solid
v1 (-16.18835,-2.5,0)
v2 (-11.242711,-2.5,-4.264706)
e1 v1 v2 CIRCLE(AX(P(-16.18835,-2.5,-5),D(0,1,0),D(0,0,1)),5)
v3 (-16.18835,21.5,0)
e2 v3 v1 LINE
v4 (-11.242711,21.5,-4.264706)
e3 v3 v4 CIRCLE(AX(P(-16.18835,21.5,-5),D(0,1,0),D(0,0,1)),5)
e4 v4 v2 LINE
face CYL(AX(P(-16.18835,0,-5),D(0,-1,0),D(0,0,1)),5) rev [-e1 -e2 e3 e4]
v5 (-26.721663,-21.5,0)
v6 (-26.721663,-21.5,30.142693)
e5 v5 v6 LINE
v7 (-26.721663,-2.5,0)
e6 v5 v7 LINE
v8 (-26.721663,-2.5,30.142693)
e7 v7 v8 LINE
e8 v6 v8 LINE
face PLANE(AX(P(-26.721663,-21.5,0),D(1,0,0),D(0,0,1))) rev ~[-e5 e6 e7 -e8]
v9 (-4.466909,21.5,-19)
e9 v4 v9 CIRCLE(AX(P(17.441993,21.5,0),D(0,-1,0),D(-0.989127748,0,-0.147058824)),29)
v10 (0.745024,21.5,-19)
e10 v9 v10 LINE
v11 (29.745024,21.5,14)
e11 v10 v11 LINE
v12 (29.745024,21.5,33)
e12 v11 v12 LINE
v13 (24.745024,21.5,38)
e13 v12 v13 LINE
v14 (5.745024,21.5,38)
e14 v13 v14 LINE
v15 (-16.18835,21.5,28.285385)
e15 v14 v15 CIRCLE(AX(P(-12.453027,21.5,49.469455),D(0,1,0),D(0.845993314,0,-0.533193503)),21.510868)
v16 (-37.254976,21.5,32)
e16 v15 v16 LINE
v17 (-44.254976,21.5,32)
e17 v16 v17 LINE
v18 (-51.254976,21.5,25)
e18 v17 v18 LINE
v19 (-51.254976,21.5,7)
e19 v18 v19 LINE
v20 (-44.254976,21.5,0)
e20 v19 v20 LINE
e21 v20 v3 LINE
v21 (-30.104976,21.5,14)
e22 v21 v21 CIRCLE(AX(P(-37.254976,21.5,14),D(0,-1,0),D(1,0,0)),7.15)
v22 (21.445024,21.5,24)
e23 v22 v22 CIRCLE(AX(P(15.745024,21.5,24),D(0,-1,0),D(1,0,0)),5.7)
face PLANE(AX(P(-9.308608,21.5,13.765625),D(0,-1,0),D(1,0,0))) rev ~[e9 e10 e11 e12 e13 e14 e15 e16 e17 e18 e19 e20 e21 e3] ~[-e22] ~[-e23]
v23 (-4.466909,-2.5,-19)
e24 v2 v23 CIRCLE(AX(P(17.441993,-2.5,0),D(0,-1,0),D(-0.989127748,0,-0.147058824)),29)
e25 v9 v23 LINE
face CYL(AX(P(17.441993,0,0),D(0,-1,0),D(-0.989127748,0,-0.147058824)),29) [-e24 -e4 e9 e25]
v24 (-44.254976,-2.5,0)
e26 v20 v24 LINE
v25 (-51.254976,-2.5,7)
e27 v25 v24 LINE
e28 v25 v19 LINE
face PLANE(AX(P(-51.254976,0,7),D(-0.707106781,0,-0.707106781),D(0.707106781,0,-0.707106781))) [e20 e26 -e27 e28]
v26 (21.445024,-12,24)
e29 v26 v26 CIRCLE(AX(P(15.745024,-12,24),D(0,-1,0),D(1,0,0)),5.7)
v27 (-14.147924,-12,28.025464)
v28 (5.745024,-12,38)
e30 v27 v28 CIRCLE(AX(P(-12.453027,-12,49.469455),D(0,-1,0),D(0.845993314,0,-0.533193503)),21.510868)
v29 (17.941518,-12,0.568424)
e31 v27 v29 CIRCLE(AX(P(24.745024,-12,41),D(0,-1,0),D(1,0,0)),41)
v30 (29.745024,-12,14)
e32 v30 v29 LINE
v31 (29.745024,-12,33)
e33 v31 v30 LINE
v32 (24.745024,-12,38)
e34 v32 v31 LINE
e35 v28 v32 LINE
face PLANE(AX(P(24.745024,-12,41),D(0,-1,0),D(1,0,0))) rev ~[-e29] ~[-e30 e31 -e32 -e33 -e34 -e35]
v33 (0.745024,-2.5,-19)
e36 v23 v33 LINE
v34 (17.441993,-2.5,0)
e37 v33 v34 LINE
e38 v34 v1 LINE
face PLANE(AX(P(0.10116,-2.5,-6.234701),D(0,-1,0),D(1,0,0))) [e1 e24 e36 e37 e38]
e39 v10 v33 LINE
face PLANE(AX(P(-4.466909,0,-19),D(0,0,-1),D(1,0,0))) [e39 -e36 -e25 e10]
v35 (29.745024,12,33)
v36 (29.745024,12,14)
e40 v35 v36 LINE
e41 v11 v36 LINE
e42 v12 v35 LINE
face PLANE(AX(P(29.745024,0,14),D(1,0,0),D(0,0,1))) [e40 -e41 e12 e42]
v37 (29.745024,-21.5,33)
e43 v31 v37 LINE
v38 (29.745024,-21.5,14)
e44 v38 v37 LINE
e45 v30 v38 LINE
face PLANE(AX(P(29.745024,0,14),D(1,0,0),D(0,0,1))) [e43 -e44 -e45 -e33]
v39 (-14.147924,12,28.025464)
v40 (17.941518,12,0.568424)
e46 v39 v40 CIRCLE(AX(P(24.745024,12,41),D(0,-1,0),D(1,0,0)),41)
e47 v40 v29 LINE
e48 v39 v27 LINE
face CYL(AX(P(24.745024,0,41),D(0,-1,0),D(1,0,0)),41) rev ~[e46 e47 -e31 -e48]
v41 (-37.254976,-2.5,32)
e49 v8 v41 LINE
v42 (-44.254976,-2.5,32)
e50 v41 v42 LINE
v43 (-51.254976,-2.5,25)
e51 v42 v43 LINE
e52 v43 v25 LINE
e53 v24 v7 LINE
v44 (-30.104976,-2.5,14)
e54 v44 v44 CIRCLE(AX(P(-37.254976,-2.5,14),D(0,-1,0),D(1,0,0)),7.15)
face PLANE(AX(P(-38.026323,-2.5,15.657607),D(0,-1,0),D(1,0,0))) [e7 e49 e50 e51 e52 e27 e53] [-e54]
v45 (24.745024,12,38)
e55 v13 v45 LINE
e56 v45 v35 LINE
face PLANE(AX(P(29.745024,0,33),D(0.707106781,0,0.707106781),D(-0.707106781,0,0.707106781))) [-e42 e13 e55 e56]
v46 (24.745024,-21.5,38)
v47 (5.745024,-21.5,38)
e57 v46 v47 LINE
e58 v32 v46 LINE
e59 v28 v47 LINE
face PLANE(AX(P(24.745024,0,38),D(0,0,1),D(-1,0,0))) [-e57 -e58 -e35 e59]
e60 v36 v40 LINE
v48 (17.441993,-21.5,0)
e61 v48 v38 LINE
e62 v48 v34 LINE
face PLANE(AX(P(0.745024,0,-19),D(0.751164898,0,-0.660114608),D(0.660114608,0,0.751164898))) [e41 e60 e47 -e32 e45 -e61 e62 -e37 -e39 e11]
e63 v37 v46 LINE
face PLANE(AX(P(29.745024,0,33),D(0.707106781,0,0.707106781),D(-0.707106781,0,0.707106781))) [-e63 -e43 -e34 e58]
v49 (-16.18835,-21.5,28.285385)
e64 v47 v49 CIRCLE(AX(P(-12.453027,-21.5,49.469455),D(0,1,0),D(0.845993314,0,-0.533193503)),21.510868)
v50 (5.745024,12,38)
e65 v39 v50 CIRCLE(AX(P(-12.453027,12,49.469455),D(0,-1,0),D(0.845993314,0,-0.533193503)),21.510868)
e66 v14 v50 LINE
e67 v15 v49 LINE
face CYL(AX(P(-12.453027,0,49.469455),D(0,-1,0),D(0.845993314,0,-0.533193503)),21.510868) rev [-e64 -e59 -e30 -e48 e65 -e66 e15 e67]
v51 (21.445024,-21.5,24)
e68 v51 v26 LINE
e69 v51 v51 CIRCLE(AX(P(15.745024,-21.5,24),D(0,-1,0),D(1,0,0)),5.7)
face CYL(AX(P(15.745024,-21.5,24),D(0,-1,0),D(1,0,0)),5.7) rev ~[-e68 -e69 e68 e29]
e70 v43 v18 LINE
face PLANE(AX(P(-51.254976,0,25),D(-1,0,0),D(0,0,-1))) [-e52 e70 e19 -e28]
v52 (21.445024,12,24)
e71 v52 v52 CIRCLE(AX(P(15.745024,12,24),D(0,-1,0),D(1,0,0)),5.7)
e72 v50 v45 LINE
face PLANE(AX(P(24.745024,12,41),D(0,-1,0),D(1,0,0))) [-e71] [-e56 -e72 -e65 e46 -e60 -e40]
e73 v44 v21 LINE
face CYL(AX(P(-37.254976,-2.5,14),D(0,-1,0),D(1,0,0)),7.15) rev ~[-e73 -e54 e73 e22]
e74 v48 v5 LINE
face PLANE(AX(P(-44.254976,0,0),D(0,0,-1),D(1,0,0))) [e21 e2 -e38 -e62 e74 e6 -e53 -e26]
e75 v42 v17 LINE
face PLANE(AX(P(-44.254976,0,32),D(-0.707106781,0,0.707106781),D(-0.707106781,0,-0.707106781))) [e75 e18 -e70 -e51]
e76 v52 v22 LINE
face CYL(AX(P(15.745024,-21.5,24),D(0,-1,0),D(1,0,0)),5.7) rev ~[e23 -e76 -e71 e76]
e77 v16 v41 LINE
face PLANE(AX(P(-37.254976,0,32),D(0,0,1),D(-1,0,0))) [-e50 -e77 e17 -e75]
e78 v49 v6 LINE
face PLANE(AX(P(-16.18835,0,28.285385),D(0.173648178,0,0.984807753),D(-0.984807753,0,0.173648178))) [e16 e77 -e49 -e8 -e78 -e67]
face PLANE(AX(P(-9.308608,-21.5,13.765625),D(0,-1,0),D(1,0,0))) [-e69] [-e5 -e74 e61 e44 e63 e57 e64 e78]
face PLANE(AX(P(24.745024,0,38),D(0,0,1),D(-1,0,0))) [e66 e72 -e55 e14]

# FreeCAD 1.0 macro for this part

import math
import FreeCAD as App
import Part
import Sketcher

V = App.Vector
Q = App.Units.Quantity


def add_polygon(sketch, points):
    """Adds a closed chain of lines whose ends are joined by coincident constraints."""
    first, n = sketch.GeometryCount, len(points)
    for a, b in zip(points, points[1:] + points[:1]):
        sketch.addGeometry(Part.LineSegment(App.Vector(*a, 0), App.Vector(*b, 0)), False)
    for i in range(n):
        sketch.addConstraint(Sketcher.Constraint("Coincident", first + i, 2, first + (i + 1) % n, 1))

doc = App.newDocument("Part")
params = doc.addObject("Spreadsheet::Sheet", "Params")
for row, (alias, value) in enumerate([
    ("sketch1_radius", "5 mm"),
    ("sketch1_radius2", "29 mm"),
    ("sketch1_width", "19 mm"),
    ("sketch1_width2", "7 mm"),
    ("sketch1_height", "18 mm"),
    ("pad1_length", "43 mm"),
    ("sketch2_radius", "5 mm"),
    ("sketch2_radius2", "29 mm"),
    ("sketch2_width", "7 mm"),
    ("sketch2_height", "18 mm"),
    ("pocket1_length", "19 mm"),
    ("sketch3_diameter", "82 mm"),
    ("pocket2_length", "24 mm"),
    ("sketch4_diameter", "11.4 mm"),
    ("sketch5_diameter", "14.3 mm"),
], start=1):
    params.set(f"A{row}", alias)
    params.set(f"B{row}", "=" + value)
    params.setAlias(f"B{row}", alias)

body = doc.addObject("PartDesign::Body", "Body")

# Sketch on XZ plane
sketch1 = body.newObject("Sketcher::SketchObject", "Sketch")
sketch1.AttachmentSupport = (doc.getObject("XZ_Plane"), [""])
sketch1.MapMode = "FlatFace"
sketch1.addGeometry(Part.LineSegment(V(-51, 7, 0), V(-44, 0, 0)), False)
sketch1.addGeometry(Part.LineSegment(V(-44, 0, 0), V(-16, 0, 0)), False)
sketch1.addGeometry(Part.ArcOfCircle(Part.Circle(V(-16, -5, 0), V(0, 0, 1), 5), math.radians(8), math.radians(90)), False)
sketch1.addGeometry(Part.ArcOfCircle(Part.Circle(V(17, 0, 0), V(0, 0, 1), 29), math.radians(-172), math.radians(-139)), False)
sketch1.addGeometry(Part.LineSegment(V(-4, -19, 0), V(1, -19, 0)), False)
sketch1.addGeometry(Part.LineSegment(V(1, -19, 0), V(30, 14, 0)), False)
sketch1.addGeometry(Part.LineSegment(V(30, 14, 0), V(30, 33, 0)), False)
sketch1.addGeometry(Part.LineSegment(V(30, 33, 0), V(25, 38, 0)), False)
sketch1.addGeometry(Part.LineSegment(V(25, 38, 0), V(6, 38, 0)), False)
sketch1.addGeometry(Part.ArcOfCircle(Part.Circle(V(-12, 49, 0), V(0, 0, 1), 22), math.radians(-100), math.radians(-32)), False)
sketch1.addGeometry(Part.LineSegment(V(-16, 28, 0), V(-37, 32, 0)), False)
sketch1.addGeometry(Part.LineSegment(V(-37, 32, 0), V(-44, 32, 0)), False)
sketch1.addGeometry(Part.LineSegment(V(-44, 32, 0), V(-51, 25, 0)), False)
sketch1.addGeometry(Part.LineSegment(V(-51, 25, 0), V(-51, 7, 0)), False)
sketch1.addConstraint(Sketcher.Constraint("Coincident", 0, 2, 1, 1))
sketch1.addConstraint(Sketcher.Constraint("Tangent", 1, 2, 2, 2))
sketch1.addConstraint(Sketcher.Constraint("Tangent", 2, 1, 3, 1))
sketch1.addConstraint(Sketcher.Constraint("Coincident", 3, 2, 4, 1))
sketch1.addConstraint(Sketcher.Constraint("Coincident", 4, 2, 5, 1))
sketch1.addConstraint(Sketcher.Constraint("Coincident", 5, 2, 6, 1))
sketch1.addConstraint(Sketcher.Constraint("Coincident", 6, 2, 7, 1))
sketch1.addConstraint(Sketcher.Constraint("Coincident", 7, 2, 8, 1))
sketch1.addConstraint(Sketcher.Constraint("Coincident", 8, 2, 9, 2))
sketch1.addConstraint(Sketcher.Constraint("Tangent", 9, 1, 10, 1))
sketch1.addConstraint(Sketcher.Constraint("Coincident", 10, 2, 11, 1))
sketch1.addConstraint(Sketcher.Constraint("Coincident", 11, 2, 12, 1))
sketch1.addConstraint(Sketcher.Constraint("Coincident", 12, 2, 13, 1))
sketch1.addConstraint(Sketcher.Constraint("Coincident", 13, 2, 0, 1))
sketch1.addConstraint(Sketcher.Constraint("Horizontal", 1))
sketch1.addConstraint(Sketcher.Constraint("Horizontal", 4))
sketch1.addConstraint(Sketcher.Constraint("Vertical", 6))
sketch1.addConstraint(Sketcher.Constraint("Horizontal", 8))
sketch1.addConstraint(Sketcher.Constraint("Horizontal", 11))
sketch1.addConstraint(Sketcher.Constraint("Vertical", 13))
sketch1.addConstraint(Sketcher.Constraint("PointOnObject", 3, 3, -1))
sketch1.addConstraint(Sketcher.Constraint("PointOnObject", 0, 2, -1))
sketch1.addConstraint(Sketcher.Constraint("Parallel", 0, 7))
sketch1.addConstraint(Sketcher.Constraint("Perpendicular", 7, 12))
sketch1.addConstraint(Sketcher.Constraint("Vertical", 1, 2, 9, 1))
sketch1.addConstraint(Sketcher.Constraint("Vertical", 0, 2, 11, 2))
sketch1.addConstraint(Sketcher.Constraint("Equal", 8, 6))
sketch1.addConstraint(Sketcher.Constraint("Equal", 0, 12))
sketch1.addConstraint(Sketcher.Constraint("Radius", 2, 5.0))
sketch1.addConstraint(Sketcher.Constraint("Radius", 3, 29.0))
sketch1.addConstraint(Sketcher.Constraint("DistanceX", 8, 2, 8, 1, 19.0))
sketch1.addConstraint(Sketcher.Constraint("DistanceX", 11, 2, 11, 1, 7.0))
sketch1.addConstraint(Sketcher.Constraint("DistanceY", 13, 2, 13, 1, 18.0))
sketch1.addConstraint(Sketcher.Constraint("Angle", 10, Q("170 deg")))
sketch1.addConstraint(Sketcher.Constraint("DistanceY", 3, 2, -1, 1, 19.0))
sketch1.addConstraint(Sketcher.Constraint("DistanceY", -1, 1, 5, 2, 14.0))
sketch1.addConstraint(Sketcher.Constraint("DistanceY", -1, 1, 7, 2, 38.0))
sketch1.addConstraint(Sketcher.Constraint("DistanceY", -1, 1, 10, 2, 32.0))
sketch1.addConstraint(Sketcher.Constraint("DistanceX", 4, 2, 5, 2, 29.0))
sketch1.addConstraint(Sketcher.Constraint("Radius", 9, 21.510868))
sketch1.addConstraint(Sketcher.Constraint("DistanceX", 1, 1, 1, 2, 28.066626))
sketch1.addConstraint(Sketcher.Constraint("DistanceX", 2, 3, -1, 1, 16.18835))
sketch1.setExpression("Constraints[28]", "Params.sketch1_radius")
sketch1.setExpression("Constraints[29]", "Params.sketch1_radius2")
sketch1.setExpression("Constraints[30]", "Params.sketch1_width")
sketch1.setExpression("Constraints[31]", "Params.sketch1_width2")
sketch1.setExpression("Constraints[32]", "Params.sketch1_height")
pad1 = body.newObject("PartDesign::Pad", "Pad")
pad1.Profile = sketch1
pad1.setExpression("Length", "Params.pad1_length")
pad1.Midplane = True

# Sketch on XZ plane
sketch2 = body.newObject("Sketcher::SketchObject", "Sketch001")
sketch2.AttachmentSupport = (doc.getObject("XZ_Plane"), [""])
sketch2.MapMode = "FlatFace"
sketch2.AttachmentOffset = App.Placement(V(0, 0, 21.5), App.Rotation())
add_polygon(sketch2, [(-27, 0), (-27, 30), (-37, 32), (-44, 32), (-51, 25), (-51, 7), (-44, 0)])  # lines 0-6
sketch2.addGeometry(Part.LineSegment(V(17, 0, 0), V(-16, 0, 0)), False)  # 7
sketch2.addGeometry(Part.ArcOfCircle(Part.Circle(V(-16, -5, 0), V(0, 0, 1), 5), math.radians(8), math.radians(90)), False)  # 8
sketch2.addGeometry(Part.ArcOfCircle(Part.Circle(V(17, 0, 0), V(0, 0, 1), 29), math.radians(-172), math.radians(-139)), False)  # 9
sketch2.addGeometry(Part.LineSegment(V(-4, -19, 0), V(1, -19, 0)), False)  # 10
sketch2.addGeometry(Part.LineSegment(V(1, -19, 0), V(17, 0, 0)), False)  # 11
sketch2.addConstraint(Sketcher.Constraint("Tangent", 7, 2, 8, 2))
sketch2.addConstraint(Sketcher.Constraint("Tangent", 8, 1, 9, 1))
sketch2.addConstraint(Sketcher.Constraint("Coincident", 9, 2, 10, 1))
sketch2.addConstraint(Sketcher.Constraint("Coincident", 10, 2, 11, 1))
sketch2.addConstraint(Sketcher.Constraint("Coincident", 11, 2, 7, 1))
sketch2.addConstraint(Sketcher.Constraint("Vertical", 0))
sketch2.addConstraint(Sketcher.Constraint("Horizontal", 2))
sketch2.addConstraint(Sketcher.Constraint("Vertical", 4))
sketch2.addConstraint(Sketcher.Constraint("Horizontal", 6))
sketch2.addConstraint(Sketcher.Constraint("Horizontal", 7))
sketch2.addConstraint(Sketcher.Constraint("Horizontal", 10))
sketch2.addConstraint(Sketcher.Constraint("Coincident", 11, 2, 9, 3))
sketch2.addConstraint(Sketcher.Constraint("PointOnObject", 9, 3, -1))
sketch2.addConstraint(Sketcher.Constraint("PointOnObject", 5, 2, -1))
sketch2.addConstraint(Sketcher.Constraint("Perpendicular", 3, 5))
sketch2.addConstraint(Sketcher.Constraint("Vertical", 2, 2, 5, 2))
sketch2.addConstraint(Sketcher.Constraint("Equal", 3, 5))
sketch2.addConstraint(Sketcher.Constraint("Radius", 8, 5.0))
sketch2.addConstraint(Sketcher.Constraint("Radius", 9, 29.0))
sketch2.addConstraint(Sketcher.Constraint("DistanceX", 2, 2, 2, 1, 7.0))
sketch2.addConstraint(Sketcher.Constraint("DistanceY", 4, 2, 4, 1, 18.0))
sketch2.addConstraint(Sketcher.Constraint("Angle", 1, Q("170 deg")))
sketch2.addConstraint(Sketcher.Constraint("DistanceY", -1, 1, 1, 2, 32.0))
sketch2.addConstraint(Sketcher.Constraint("DistanceY", 9, 2, -1, 1, 19.0))
sketch2.addConstraint(Sketcher.Constraint("DistanceX", 6, 1, 6, 2, 17.533313))
sketch2.addConstraint(Sketcher.Constraint("DistanceX", 10, 1, 10, 2, 5.211933))
sketch2.addConstraint(Sketcher.Constraint("DistanceX", 8, 3, -1, 1, 16.18835))
sketch2.addConstraint(Sketcher.Constraint("DistanceX", 1, 2, 9, 3, 54.69697))
sketch2.setExpression("Constraints[24]", "Params.sketch2_radius")
sketch2.setExpression("Constraints[25]", "Params.sketch2_radius2")
sketch2.setExpression("Constraints[26]", "Params.sketch2_width")
sketch2.setExpression("Constraints[27]", "Params.sketch2_height")
pocket1 = body.newObject("PartDesign::Pocket", "Pocket")
pocket1.Profile = sketch2
pocket1.setExpression("Length", "Params.pocket1_length")

# Sketch on XZ plane
sketch3 = body.newObject("Sketcher::SketchObject", "Sketch002")
sketch3.AttachmentSupport = (doc.getObject("XZ_Plane"), [""])
sketch3.MapMode = "FlatFace"
sketch3.addGeometry(Part.Circle(V(25, 41, 0), V(0, 0, 1), 41), False)
sketch3.addConstraint(Sketcher.Constraint("Diameter", 0, 82.0))
sketch3.addConstraint(Sketcher.Constraint("DistanceY", -1, 1, 0, 3, 41.0))
sketch3.addConstraint(Sketcher.Constraint("DistanceX", -1, 1, 0, 3, 24.745024))
sketch3.setExpression("Constraints[0]", "Params.sketch3_diameter")
pocket2 = body.newObject("PartDesign::Pocket", "Pocket001")
pocket2.Profile = sketch3
pocket2.setExpression("Length", "Params.pocket2_length")
pocket2.Midplane = True

# Sketch on XZ plane
sketch4 = body.newObject("Sketcher::SketchObject", "Sketch003")
sketch4.AttachmentSupport = (doc.getObject("XZ_Plane"), [""])
sketch4.MapMode = "FlatFace"
sketch4.AttachmentOffset = App.Placement(V(0, 0, 21.5), App.Rotation())
sketch4.addGeometry(Part.Circle(V(16, 24, 0), V(0, 0, 1), 6), False)
sketch4.addConstraint(Sketcher.Constraint("Diameter", 0, 11.4))
sketch4.addConstraint(Sketcher.Constraint("DistanceY", -1, 1, 0, 3, 24.0))
sketch4.addConstraint(Sketcher.Constraint("DistanceX", -1, 1, 0, 3, 15.745024))
sketch4.setExpression("Constraints[0]", "Params.sketch4_diameter")
pocket3 = body.newObject("PartDesign::Pocket", "Pocket002")
pocket3.Profile = sketch4
pocket3.Type = "ThroughAll"

# Sketch on XZ plane
sketch5 = body.newObject("Sketcher::SketchObject", "Sketch004")
sketch5.AttachmentSupport = (doc.getObject("XZ_Plane"), [""])
sketch5.MapMode = "FlatFace"
sketch5.AttachmentOffset = App.Placement(V(0, 0, 2.5), App.Rotation())
sketch5.addGeometry(Part.Circle(V(-37, 14, 0), V(0, 0, 1), 7), False)
sketch5.addConstraint(Sketcher.Constraint("Diameter", 0, 14.3))
sketch5.addConstraint(Sketcher.Constraint("DistanceY", -1, 1, 0, 3, 14.0))
sketch5.addConstraint(Sketcher.Constraint("DistanceX", 0, 3, -1, 1, 37.254976))
sketch5.setExpression("Constraints[0]", "Params.sketch5_diameter")
pocket4 = body.newObject("PartDesign::Pocket", "Pocket003")
pocket4.Profile = sketch5
pocket4.Type = "ThroughAll"

doc.recompute()
